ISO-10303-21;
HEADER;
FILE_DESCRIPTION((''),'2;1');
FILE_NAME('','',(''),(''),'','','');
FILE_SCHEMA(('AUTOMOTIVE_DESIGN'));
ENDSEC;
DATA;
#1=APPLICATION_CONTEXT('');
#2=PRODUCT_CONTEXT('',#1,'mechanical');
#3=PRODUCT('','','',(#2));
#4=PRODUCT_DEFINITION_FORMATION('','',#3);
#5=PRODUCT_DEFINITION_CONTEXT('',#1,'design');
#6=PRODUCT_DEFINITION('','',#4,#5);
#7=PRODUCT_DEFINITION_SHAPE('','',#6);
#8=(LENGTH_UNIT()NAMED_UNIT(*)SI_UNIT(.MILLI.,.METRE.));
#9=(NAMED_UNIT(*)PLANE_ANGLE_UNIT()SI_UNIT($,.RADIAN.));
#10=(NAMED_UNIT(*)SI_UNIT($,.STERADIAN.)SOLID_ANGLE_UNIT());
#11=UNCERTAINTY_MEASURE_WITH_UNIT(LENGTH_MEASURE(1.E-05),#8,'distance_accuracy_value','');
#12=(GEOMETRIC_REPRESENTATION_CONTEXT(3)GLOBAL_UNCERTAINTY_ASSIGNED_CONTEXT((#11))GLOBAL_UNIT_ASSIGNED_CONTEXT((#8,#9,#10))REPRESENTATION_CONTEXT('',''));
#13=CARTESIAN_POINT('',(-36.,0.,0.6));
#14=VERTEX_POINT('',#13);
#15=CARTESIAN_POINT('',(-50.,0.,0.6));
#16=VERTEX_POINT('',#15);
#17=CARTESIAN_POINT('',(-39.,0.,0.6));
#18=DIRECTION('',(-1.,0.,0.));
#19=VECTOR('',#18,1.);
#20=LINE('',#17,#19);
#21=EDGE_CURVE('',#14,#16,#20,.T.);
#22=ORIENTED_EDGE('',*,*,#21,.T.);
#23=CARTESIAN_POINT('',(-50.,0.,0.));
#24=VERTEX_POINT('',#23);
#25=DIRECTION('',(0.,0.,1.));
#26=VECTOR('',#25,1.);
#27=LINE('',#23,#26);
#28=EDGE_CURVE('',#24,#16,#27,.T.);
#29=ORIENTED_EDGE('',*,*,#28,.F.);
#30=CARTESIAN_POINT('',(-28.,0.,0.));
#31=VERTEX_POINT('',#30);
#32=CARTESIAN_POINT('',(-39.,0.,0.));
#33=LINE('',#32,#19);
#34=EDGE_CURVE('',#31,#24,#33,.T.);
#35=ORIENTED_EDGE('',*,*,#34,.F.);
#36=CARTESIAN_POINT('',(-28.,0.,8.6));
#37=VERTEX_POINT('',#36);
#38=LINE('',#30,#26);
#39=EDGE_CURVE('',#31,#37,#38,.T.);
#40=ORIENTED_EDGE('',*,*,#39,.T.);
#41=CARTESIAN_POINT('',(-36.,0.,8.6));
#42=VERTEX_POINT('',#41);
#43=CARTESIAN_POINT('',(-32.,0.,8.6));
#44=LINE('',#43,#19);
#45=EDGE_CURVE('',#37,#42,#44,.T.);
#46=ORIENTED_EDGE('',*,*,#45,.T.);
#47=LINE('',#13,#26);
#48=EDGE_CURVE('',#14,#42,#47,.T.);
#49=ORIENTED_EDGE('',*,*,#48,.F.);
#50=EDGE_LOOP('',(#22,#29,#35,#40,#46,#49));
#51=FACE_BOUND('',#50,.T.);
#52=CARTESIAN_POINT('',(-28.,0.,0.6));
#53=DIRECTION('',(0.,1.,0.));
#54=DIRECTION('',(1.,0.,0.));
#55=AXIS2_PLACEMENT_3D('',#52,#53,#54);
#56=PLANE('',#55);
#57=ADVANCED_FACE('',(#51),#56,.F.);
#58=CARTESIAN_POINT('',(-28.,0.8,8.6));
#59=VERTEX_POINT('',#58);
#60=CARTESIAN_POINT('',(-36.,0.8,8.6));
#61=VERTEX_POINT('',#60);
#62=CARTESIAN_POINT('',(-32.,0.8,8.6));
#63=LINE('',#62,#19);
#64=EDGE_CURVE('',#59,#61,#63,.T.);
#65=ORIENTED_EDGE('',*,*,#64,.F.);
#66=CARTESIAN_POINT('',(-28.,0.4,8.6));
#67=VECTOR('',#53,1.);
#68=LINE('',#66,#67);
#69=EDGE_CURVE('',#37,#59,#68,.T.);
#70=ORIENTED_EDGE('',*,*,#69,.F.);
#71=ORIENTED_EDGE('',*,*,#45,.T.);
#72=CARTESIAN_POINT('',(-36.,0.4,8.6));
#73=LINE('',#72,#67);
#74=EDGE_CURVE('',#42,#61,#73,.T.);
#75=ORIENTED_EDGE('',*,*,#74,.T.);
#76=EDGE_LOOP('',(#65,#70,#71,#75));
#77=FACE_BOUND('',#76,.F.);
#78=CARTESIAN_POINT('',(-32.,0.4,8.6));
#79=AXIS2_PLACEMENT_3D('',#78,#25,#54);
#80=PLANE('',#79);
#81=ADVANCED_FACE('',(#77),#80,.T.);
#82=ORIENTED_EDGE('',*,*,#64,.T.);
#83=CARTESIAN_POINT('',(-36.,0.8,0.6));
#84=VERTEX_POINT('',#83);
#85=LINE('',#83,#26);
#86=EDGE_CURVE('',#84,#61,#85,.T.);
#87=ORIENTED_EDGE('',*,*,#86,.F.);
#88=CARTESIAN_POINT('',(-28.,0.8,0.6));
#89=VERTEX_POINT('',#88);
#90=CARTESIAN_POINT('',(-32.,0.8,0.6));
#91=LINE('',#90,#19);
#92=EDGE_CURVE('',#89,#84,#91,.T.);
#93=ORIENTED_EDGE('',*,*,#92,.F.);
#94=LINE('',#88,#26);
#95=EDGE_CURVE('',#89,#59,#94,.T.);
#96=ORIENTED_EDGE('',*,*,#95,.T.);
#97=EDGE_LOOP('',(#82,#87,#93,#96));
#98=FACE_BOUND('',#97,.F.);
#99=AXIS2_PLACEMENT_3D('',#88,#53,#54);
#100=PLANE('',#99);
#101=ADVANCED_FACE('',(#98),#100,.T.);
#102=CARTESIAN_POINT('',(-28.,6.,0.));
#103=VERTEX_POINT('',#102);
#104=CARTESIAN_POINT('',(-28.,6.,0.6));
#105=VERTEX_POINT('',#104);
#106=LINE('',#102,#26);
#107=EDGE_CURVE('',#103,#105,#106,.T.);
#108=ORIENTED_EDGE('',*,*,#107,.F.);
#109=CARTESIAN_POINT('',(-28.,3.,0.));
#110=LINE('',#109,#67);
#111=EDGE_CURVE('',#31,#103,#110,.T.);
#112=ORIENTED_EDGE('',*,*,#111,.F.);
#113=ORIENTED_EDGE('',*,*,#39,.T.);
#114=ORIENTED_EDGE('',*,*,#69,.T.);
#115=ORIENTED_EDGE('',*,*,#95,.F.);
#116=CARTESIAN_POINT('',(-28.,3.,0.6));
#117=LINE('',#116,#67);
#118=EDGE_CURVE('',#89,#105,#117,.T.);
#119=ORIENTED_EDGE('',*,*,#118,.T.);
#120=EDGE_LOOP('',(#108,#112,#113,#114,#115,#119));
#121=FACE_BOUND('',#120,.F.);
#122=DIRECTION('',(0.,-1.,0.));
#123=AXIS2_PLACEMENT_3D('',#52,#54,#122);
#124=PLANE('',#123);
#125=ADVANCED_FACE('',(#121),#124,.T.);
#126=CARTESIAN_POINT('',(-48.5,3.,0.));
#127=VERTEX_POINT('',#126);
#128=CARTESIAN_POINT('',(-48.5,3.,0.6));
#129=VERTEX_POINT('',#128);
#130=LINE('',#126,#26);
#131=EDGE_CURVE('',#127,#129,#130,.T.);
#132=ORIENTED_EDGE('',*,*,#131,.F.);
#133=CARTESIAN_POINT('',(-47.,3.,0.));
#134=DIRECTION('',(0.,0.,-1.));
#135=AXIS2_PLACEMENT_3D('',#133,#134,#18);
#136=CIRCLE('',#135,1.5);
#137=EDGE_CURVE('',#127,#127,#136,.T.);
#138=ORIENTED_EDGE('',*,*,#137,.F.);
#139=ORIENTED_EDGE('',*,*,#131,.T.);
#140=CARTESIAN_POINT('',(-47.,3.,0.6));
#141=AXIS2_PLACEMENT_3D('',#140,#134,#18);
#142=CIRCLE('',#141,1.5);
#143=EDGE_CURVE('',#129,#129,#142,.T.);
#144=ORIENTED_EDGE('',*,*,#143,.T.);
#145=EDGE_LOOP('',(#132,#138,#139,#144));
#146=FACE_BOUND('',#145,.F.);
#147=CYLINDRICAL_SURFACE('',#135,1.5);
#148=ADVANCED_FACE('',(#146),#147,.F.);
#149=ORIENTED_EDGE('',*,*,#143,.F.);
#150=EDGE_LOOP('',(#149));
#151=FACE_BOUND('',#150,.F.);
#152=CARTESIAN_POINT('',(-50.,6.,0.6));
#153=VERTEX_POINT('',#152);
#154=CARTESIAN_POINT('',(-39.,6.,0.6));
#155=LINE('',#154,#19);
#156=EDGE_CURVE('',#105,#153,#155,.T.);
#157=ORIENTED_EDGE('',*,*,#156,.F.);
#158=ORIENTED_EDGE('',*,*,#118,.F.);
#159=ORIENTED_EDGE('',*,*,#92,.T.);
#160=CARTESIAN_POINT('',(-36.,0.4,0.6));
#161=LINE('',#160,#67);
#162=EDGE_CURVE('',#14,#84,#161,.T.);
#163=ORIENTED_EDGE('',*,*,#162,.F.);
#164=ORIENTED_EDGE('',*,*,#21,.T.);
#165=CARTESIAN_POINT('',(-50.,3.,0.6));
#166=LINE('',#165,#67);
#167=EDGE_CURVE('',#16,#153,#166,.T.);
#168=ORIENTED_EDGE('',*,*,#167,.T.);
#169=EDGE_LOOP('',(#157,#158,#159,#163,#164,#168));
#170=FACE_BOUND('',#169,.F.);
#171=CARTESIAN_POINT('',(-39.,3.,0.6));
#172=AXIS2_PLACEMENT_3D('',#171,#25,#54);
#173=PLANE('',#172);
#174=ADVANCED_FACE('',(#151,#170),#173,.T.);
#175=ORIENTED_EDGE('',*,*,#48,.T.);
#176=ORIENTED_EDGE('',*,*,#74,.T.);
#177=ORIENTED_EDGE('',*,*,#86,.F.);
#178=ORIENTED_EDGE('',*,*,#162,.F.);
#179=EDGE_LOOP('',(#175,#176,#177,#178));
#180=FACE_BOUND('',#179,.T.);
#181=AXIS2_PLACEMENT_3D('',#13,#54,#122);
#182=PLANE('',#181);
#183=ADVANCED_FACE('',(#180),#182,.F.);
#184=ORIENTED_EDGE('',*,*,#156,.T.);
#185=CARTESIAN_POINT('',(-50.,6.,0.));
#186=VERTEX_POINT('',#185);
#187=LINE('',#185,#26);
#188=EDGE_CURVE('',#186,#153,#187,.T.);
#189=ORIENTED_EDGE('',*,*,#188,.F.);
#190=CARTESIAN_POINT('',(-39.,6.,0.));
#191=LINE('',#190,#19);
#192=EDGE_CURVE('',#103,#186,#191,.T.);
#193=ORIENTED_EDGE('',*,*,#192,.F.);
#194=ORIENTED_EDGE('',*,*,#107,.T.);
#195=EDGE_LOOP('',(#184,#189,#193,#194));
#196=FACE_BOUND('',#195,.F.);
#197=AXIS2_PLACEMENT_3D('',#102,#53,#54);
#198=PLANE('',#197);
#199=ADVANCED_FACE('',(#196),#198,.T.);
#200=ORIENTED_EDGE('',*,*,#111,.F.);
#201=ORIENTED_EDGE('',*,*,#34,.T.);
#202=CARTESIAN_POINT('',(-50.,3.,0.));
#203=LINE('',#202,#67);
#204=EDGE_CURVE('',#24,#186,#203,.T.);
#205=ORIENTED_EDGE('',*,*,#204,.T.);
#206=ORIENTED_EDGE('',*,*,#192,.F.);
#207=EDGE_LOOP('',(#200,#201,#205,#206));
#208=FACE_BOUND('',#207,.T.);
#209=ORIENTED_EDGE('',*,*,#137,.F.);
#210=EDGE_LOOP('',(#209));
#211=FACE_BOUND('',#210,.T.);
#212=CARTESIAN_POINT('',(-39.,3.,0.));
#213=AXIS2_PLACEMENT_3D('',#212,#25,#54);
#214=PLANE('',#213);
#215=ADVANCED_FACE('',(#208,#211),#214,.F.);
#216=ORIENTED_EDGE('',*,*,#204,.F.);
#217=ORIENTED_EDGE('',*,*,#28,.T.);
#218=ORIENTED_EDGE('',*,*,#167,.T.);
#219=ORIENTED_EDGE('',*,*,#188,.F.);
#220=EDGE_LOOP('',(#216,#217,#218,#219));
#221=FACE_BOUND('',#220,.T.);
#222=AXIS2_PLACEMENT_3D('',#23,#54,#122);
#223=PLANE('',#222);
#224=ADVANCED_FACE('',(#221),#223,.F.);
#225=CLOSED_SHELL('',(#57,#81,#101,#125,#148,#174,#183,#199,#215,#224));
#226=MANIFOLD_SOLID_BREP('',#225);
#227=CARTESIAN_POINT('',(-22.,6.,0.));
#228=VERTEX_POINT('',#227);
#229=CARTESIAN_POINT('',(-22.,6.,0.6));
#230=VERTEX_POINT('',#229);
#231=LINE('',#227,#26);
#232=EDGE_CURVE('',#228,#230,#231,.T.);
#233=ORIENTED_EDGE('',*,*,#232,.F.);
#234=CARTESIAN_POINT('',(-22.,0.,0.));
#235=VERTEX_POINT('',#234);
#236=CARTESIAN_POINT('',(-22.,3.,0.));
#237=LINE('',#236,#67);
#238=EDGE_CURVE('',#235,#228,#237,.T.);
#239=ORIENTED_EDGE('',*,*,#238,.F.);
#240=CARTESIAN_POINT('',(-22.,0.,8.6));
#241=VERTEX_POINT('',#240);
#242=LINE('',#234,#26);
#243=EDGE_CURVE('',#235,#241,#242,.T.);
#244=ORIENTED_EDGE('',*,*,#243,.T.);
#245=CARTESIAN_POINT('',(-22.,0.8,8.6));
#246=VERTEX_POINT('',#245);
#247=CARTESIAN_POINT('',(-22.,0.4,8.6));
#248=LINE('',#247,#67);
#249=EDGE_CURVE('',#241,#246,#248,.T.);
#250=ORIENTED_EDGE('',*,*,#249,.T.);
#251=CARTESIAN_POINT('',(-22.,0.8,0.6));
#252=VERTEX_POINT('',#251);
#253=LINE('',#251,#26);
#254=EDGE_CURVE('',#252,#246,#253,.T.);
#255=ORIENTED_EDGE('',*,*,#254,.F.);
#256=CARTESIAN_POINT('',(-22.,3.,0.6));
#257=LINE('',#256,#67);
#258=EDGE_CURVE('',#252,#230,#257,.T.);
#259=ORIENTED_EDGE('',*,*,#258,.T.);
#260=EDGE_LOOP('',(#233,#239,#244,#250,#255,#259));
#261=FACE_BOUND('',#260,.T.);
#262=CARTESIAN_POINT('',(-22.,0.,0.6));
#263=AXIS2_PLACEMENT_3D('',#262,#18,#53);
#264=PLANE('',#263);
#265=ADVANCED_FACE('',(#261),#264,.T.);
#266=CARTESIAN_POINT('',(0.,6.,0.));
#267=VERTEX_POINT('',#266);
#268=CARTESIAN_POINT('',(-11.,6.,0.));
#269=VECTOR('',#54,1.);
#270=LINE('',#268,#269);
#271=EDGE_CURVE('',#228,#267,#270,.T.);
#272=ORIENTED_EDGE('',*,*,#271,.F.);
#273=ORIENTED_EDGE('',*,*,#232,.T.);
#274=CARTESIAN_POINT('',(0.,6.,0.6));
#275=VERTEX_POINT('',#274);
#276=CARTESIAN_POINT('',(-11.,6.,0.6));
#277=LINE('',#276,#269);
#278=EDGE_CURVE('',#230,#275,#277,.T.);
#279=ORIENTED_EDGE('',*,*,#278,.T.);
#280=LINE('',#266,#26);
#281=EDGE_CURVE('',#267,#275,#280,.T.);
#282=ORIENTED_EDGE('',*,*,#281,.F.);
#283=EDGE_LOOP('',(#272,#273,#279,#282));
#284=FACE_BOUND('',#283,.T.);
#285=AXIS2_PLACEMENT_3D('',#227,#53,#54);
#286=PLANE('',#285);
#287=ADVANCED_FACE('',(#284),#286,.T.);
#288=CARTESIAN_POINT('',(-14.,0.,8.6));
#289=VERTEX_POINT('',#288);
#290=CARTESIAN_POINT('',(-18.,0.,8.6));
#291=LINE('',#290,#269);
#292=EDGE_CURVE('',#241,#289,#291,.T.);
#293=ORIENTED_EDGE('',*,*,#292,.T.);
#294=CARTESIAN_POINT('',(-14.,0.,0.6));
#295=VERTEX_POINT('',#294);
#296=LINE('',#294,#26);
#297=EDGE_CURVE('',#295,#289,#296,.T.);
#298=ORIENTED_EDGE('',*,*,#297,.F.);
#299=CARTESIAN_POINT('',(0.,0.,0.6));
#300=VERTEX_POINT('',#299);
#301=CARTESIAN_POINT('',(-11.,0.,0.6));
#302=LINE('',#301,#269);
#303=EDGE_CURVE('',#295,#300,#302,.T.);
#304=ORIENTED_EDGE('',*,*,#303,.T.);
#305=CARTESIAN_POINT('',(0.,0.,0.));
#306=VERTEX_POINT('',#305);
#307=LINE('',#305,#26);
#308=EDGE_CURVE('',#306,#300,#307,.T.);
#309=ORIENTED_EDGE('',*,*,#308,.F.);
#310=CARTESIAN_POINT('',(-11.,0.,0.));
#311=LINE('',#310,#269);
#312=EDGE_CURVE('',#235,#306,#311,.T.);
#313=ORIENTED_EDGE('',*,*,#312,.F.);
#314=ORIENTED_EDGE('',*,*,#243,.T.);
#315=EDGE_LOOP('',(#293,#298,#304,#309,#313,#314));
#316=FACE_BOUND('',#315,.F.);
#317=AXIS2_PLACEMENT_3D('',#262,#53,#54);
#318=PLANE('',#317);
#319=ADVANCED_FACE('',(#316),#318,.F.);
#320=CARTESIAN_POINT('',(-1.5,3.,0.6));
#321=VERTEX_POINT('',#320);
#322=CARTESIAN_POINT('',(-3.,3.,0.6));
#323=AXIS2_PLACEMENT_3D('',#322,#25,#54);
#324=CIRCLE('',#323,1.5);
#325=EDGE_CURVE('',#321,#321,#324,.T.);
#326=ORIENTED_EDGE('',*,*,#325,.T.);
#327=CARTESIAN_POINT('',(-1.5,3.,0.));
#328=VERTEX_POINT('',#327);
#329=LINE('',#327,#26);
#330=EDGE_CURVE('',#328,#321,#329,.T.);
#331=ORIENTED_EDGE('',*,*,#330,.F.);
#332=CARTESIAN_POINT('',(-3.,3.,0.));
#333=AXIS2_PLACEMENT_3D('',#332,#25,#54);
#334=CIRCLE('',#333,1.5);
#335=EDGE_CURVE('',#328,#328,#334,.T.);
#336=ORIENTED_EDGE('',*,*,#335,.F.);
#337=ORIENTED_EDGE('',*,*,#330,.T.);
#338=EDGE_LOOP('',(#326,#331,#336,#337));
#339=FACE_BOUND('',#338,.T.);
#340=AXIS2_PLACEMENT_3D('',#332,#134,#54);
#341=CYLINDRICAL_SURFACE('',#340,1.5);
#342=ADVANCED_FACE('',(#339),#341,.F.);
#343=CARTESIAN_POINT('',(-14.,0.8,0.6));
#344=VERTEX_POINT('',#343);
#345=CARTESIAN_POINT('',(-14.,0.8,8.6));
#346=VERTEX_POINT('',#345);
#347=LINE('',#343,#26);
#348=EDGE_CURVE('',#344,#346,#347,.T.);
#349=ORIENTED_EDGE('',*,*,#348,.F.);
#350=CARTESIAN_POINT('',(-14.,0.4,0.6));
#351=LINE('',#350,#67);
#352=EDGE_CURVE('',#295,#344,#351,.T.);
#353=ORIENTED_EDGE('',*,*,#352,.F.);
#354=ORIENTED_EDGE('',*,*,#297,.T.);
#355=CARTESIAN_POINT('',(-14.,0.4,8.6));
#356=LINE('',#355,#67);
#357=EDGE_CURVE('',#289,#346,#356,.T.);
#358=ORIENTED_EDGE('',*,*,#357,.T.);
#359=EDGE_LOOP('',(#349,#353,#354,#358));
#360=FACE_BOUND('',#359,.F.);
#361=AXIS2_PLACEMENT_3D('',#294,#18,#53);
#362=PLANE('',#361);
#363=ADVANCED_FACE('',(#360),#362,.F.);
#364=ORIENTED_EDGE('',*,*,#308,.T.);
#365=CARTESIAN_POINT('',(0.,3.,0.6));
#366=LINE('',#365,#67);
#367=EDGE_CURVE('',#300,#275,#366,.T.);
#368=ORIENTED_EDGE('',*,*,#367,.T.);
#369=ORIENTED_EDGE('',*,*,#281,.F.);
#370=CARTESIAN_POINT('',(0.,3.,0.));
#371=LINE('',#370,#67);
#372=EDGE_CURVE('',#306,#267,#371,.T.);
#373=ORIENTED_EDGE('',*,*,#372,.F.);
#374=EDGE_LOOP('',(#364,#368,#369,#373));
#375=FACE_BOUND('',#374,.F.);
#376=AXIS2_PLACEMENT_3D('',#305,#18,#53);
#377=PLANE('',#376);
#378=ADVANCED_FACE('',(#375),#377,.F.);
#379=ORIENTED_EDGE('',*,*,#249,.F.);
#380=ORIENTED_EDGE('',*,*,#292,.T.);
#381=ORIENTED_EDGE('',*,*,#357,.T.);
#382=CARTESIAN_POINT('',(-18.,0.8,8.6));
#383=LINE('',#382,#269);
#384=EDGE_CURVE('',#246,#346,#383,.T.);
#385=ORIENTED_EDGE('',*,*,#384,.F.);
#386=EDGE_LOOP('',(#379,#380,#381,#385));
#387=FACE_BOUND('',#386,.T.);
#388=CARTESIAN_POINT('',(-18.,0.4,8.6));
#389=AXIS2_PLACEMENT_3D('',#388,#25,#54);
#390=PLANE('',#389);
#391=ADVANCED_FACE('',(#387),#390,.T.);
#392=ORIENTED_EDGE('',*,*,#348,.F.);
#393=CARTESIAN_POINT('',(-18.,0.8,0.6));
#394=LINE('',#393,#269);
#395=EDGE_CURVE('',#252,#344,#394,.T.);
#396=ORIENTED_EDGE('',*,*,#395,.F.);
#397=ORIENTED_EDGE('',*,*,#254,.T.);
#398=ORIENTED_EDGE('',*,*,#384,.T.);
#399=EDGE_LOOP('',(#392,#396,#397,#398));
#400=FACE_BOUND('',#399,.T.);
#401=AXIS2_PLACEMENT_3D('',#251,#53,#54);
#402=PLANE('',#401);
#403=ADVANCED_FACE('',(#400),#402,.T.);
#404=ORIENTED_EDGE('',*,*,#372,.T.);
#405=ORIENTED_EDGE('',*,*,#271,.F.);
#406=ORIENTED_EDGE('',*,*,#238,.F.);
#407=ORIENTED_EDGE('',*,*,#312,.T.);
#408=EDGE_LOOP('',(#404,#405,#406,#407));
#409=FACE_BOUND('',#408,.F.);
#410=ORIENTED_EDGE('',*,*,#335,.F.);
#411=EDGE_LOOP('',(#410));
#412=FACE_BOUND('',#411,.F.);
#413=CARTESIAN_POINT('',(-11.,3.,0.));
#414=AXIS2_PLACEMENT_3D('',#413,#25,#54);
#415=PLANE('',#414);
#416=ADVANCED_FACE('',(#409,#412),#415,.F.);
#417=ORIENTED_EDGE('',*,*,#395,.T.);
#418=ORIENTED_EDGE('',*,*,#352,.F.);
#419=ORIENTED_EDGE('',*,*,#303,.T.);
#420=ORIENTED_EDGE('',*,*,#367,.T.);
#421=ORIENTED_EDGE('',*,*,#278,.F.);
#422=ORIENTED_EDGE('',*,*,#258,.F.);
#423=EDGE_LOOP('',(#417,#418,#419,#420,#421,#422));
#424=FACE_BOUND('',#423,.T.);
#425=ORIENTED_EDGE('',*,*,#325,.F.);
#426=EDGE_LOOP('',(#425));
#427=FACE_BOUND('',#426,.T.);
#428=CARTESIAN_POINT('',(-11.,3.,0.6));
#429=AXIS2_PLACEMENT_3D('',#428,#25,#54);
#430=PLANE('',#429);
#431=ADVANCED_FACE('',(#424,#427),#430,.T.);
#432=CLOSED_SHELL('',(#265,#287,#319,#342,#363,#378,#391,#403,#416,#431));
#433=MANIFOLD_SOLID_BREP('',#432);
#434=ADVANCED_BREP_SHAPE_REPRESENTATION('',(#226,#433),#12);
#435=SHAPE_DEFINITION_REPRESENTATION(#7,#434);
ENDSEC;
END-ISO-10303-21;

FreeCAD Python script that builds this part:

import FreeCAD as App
import Part
import Sketcher
Q = App.Units.Quantity


def add_polygon(sketch, points):
    """Adds a closed chain of lines whose ends are joined by coincident constraints."""
    first, n = sketch.GeometryCount, len(points)
    for a, b in zip(points, points[1:] + points[:1]):
        sketch.addGeometry(Part.LineSegment(App.Vector(*a, 0), App.Vector(*b, 0)), False)
    for i in range(n):
        sketch.addConstraint(Sketcher.Constraint("Coincident", first + i, 2, first + (i + 1) % n, 1))

doc = App.newDocument("Part")
params = doc.addObject("Spreadsheet::Sheet", "Params")
for row, (alias, value) in enumerate([
    ("sketch1_diameter", "3 mm"),
    ("sketch1_width", "22 mm"),
    ("sketch1_height", "6 mm"),
    ("pad1_length", "0.6 mm"),
    ("sketch2_width", "8 mm"),
    ("sketch2_height", "0.8 mm"),
    ("pad2_length", "8 mm"),
], start=1):
    params.set(f"A{row}", alias)
    params.set(f"B{row}", "=" + value)
    params.setAlias(f"B{row}", alias)

body = doc.addObject("PartDesign::Body", "Body")

# Sketch on XY plane
sketch1 = doc.addObject("Sketcher::SketchObject", "Sketch")
body.addObject(sketch1)
sketch1.AttachmentSupport = (doc.XY_Plane, [""])
sketch1.MapMode = "FlatFace"
add_polygon(sketch1, [(-22, 6), (-22, 0), (0, 0), (0, 6)])  # lines 0-3
sketch1.addGeometry(Part.Circle(App.Vector(-3, 3, 0), App.Vector(0, 0, 1), 1.5), False)  # 4
sketch1.addConstraint(Sketcher.Constraint("Vertical", 0))
sketch1.addConstraint(Sketcher.Constraint("Horizontal", 1))
sketch1.addConstraint(Sketcher.Constraint("Vertical", 2))
sketch1.addConstraint(Sketcher.Constraint("Horizontal", 3))
sketch1.addConstraint(Sketcher.Constraint("Coincident", 1, 2, -1, 1))
sketch1.addConstraint(Sketcher.Constraint("Diameter", 4, Q("3 mm")))
sketch1.addConstraint(Sketcher.Constraint("DistanceX", 1, 1, 1, 2, Q("22 mm")))
sketch1.addConstraint(Sketcher.Constraint("DistanceY", 0, 2, 0, 1, Q("6 mm")))
sketch1.addConstraint(Sketcher.Constraint("DistanceX", 4, 3, -1, 1, Q("3 mm")))
sketch1.addConstraint(Sketcher.Constraint("DistanceY", -1, 1, 4, 3, Q("3 mm")))
sketch1.setExpression("Constraints[9]", "Params.sketch1_diameter")
sketch1.setExpression("Constraints[10]", "Params.sketch1_width")
sketch1.setExpression("Constraints[11]", "Params.sketch1_height")
pad1 = doc.addObject("PartDesign::Pad", "Pad")
body.addObject(pad1)
pad1.Profile = sketch1
pad1.setExpression("Length", "Params.pad1_length")

# Sketch on XY plane
sketch2 = doc.addObject("Sketcher::SketchObject", "Sketch001")
body.addObject(sketch2)
sketch2.AttachmentSupport = (doc.XY_Plane, [""])
sketch2.MapMode = "FlatFace"
sketch2.AttachmentOffset = App.Placement(App.Vector(0, 0, 0.6), App.Rotation())
add_polygon(sketch2, [(-22, 0.8), (-22, 0), (-14, 0), (-14, 0.8)])  # lines 0-3
sketch2.addConstraint(Sketcher.Constraint("Vertical", 0))
sketch2.addConstraint(Sketcher.Constraint("Horizontal", 1))
sketch2.addConstraint(Sketcher.Constraint("Vertical", 2))
sketch2.addConstraint(Sketcher.Constraint("Horizontal", 3))
sketch2.addConstraint(Sketcher.Constraint("PointOnObject", 0, 2, -1))
sketch2.addConstraint(Sketcher.Constraint("DistanceX", 1, 1, 1, 2, Q("8 mm")))
sketch2.addConstraint(Sketcher.Constraint("DistanceY", 0, 2, 0, 1, Q("0.8 mm")))
sketch2.addConstraint(Sketcher.Constraint("DistanceX", 0, 2, -1, 1, Q("22 mm")))
sketch2.setExpression("Constraints[9]", "Params.sketch2_width")
sketch2.setExpression("Constraints[10]", "Params.sketch2_height")
pad2 = doc.addObject("PartDesign::Pad", "Pad001")
body.addObject(pad2)
pad2.Profile = sketch2
pad2.setExpression("Length", "Params.pad2_length")
body2 = doc.addObject("PartDesign::Body", "Body001")
doc.recompute()

mirroring = doc.addObject("Part::Mirroring", "Mirroring")
mirroring.Source = body
mirroring.Base = App.Vector(-25, 0, 0)
mirroring.Normal = App.Vector(1, 0, 0)
body2.BaseFeature = mirroring
doc.recompute()
mirroring.Visibility = False

doc.recompute()
